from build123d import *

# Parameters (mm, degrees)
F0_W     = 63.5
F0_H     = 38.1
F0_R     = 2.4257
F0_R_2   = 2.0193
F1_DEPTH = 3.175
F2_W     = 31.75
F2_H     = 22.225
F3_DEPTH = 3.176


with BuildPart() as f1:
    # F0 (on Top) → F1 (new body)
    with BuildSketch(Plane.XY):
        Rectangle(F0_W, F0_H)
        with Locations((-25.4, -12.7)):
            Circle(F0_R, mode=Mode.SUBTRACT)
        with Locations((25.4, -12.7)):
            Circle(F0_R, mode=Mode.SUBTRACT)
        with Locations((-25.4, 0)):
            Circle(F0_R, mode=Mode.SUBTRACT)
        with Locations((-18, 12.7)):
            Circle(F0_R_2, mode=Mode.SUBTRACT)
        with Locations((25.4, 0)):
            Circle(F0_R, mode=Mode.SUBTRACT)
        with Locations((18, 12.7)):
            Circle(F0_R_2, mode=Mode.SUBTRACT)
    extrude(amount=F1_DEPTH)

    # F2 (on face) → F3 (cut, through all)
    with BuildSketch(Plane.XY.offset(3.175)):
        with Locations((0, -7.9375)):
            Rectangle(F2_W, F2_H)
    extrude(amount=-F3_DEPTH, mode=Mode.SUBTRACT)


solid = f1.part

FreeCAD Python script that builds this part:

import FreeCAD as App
import Part
import Sketcher

V = App.Vector
Q = App.Units.Quantity


def add_polygon(sketch, points):
    """Adds a closed chain of lines whose ends are joined by coincident constraints."""
    first, n = sketch.GeometryCount, len(points)
    for a, b in zip(points, points[1:] + points[:1]):
        sketch.addGeometry(Part.LineSegment(App.Vector(*a, 0), App.Vector(*b, 0)), False)
    for i in range(n):
        sketch.addConstraint(Sketcher.Constraint("Coincident", first + i, 2, first + (i + 1) % n, 1))

doc = App.newDocument("Part")
body = doc.addObject("PartDesign::Body", "Body")

# Sketch on XY plane
sketch1 = body.newObject("Sketcher::SketchObject", "Sketch")
sketch1.AttachmentSupport = (doc.getObject("XY_Plane"), [""])
sketch1.MapMode = "FlatFace"
add_polygon(sketch1, [(-31.8, 19.1), (-31.8, -19.1), (31.8, -19.1), (31.8, 19.1)])  # lines 0-3
sketch1.addGeometry(Part.Circle(V(-25.4, -12.7, 0), V(0, 0, 1), 2.4), False)  # 4
sketch1.addGeometry(Part.Circle(V(25.4, -12.7, 0), V(0, 0, 1), 2.4), False)  # 5
sketch1.addGeometry(Part.Circle(V(-25.4, 0, 0), V(0, 0, 1), 2.4), False)  # 6
sketch1.addGeometry(Part.Circle(V(-18, 12.7, 0), V(0, 0, 1), 2), False)  # 7
sketch1.addGeometry(Part.Circle(V(25.4, 0, 0), V(0, 0, 1), 2.4), False)  # 8
sketch1.addGeometry(Part.Circle(V(18, 12.7, 0), V(0, 0, 1), 2), False)  # 9
sketch1.addConstraint([
    Sketcher.Constraint("Vertical", 0),
    Sketcher.Constraint("Horizontal", 1),
    Sketcher.Constraint("Vertical", 2),
    Sketcher.Constraint("Horizontal", 3),
    Sketcher.Constraint("Equal", 4, 5),
    Sketcher.Constraint("Equal", 5, 6),
    Sketcher.Constraint("Equal", 6, 8),
    Sketcher.Constraint("Equal", 7, 9),
    Sketcher.Constraint("Symmetric", 6, 3, 8, 3, -1, 1),
    Sketcher.Constraint("Symmetric", 0, 2, 2, 2, -1, 1),
    Sketcher.Constraint("Symmetric", 4, 3, 5, 3, -2),
    Sketcher.Constraint("Symmetric", 7, 3, 9, 3, -2),
    Sketcher.Constraint("PointOnObject", 6, 3, -1),
    Sketcher.Constraint("Vertical", 4, 3, 6, 3),
    Sketcher.Constraint("Diameter", 4, Q("0.191 in")),
    Sketcher.Constraint("Diameter", 7, Q("0.159 in")),
    Sketcher.Constraint("DistanceX", 1, 1, 1, 2, Q("2.5 in")),
    Sketcher.Constraint("DistanceY", 0, 2, 0, 1, Q("1.5 in")),
    Sketcher.Constraint("DistanceX", 4, 3, -1, 1, Q("1 in")),
    Sketcher.Constraint("DistanceY", 4, 3, 7, 3, Q("1 in")),
    Sketcher.Constraint("DistanceY", 4, 3, -1, 1, Q("0.5 in")),
    Sketcher.Constraint("DistanceX", 7, 3, -1, 1, Q("18 mm")),
])
pad1 = body.newObject("PartDesign::Pad", "Pad")
pad1.Profile = sketch1
pad1.Length = Q("0.125 in")

# Sketch on XY plane
sketch2 = body.newObject("Sketcher::SketchObject", "Sketch001")
sketch2.AttachmentSupport = (doc.getObject("XY_Plane"), [""])
sketch2.MapMode = "FlatFace"
sketch2.AttachmentOffset = App.Placement(V(0, 0, 0.125 * 25.4), App.Rotation())
add_polygon(sketch2, [(-16, 3), (-16, -19), (16, -19), (16, 3)])  # lines 0-3
sketch2.addConstraint([
    Sketcher.Constraint("Vertical", 0),
    Sketcher.Constraint("Horizontal", 1),
    Sketcher.Constraint("Vertical", 2),
    Sketcher.Constraint("Horizontal", 3),
    Sketcher.Constraint("DistanceX", 1, 1, 1, 2, Q("1.25 in")),
    Sketcher.Constraint("DistanceY", 0, 2, 0, 1, Q("0.875 in")),
    Sketcher.Constraint("DistanceY", 0, 2, -1, 1, Q("0.75 in")),
    Sketcher.Constraint("DistanceX", 0, 2, -1, 1, Q("0.625 in")),
])
pocket1 = body.newObject("PartDesign::Pocket", "Pocket")
pocket1.Profile = sketch2
pocket1.Type = "ThroughAll"

doc.recompute()
